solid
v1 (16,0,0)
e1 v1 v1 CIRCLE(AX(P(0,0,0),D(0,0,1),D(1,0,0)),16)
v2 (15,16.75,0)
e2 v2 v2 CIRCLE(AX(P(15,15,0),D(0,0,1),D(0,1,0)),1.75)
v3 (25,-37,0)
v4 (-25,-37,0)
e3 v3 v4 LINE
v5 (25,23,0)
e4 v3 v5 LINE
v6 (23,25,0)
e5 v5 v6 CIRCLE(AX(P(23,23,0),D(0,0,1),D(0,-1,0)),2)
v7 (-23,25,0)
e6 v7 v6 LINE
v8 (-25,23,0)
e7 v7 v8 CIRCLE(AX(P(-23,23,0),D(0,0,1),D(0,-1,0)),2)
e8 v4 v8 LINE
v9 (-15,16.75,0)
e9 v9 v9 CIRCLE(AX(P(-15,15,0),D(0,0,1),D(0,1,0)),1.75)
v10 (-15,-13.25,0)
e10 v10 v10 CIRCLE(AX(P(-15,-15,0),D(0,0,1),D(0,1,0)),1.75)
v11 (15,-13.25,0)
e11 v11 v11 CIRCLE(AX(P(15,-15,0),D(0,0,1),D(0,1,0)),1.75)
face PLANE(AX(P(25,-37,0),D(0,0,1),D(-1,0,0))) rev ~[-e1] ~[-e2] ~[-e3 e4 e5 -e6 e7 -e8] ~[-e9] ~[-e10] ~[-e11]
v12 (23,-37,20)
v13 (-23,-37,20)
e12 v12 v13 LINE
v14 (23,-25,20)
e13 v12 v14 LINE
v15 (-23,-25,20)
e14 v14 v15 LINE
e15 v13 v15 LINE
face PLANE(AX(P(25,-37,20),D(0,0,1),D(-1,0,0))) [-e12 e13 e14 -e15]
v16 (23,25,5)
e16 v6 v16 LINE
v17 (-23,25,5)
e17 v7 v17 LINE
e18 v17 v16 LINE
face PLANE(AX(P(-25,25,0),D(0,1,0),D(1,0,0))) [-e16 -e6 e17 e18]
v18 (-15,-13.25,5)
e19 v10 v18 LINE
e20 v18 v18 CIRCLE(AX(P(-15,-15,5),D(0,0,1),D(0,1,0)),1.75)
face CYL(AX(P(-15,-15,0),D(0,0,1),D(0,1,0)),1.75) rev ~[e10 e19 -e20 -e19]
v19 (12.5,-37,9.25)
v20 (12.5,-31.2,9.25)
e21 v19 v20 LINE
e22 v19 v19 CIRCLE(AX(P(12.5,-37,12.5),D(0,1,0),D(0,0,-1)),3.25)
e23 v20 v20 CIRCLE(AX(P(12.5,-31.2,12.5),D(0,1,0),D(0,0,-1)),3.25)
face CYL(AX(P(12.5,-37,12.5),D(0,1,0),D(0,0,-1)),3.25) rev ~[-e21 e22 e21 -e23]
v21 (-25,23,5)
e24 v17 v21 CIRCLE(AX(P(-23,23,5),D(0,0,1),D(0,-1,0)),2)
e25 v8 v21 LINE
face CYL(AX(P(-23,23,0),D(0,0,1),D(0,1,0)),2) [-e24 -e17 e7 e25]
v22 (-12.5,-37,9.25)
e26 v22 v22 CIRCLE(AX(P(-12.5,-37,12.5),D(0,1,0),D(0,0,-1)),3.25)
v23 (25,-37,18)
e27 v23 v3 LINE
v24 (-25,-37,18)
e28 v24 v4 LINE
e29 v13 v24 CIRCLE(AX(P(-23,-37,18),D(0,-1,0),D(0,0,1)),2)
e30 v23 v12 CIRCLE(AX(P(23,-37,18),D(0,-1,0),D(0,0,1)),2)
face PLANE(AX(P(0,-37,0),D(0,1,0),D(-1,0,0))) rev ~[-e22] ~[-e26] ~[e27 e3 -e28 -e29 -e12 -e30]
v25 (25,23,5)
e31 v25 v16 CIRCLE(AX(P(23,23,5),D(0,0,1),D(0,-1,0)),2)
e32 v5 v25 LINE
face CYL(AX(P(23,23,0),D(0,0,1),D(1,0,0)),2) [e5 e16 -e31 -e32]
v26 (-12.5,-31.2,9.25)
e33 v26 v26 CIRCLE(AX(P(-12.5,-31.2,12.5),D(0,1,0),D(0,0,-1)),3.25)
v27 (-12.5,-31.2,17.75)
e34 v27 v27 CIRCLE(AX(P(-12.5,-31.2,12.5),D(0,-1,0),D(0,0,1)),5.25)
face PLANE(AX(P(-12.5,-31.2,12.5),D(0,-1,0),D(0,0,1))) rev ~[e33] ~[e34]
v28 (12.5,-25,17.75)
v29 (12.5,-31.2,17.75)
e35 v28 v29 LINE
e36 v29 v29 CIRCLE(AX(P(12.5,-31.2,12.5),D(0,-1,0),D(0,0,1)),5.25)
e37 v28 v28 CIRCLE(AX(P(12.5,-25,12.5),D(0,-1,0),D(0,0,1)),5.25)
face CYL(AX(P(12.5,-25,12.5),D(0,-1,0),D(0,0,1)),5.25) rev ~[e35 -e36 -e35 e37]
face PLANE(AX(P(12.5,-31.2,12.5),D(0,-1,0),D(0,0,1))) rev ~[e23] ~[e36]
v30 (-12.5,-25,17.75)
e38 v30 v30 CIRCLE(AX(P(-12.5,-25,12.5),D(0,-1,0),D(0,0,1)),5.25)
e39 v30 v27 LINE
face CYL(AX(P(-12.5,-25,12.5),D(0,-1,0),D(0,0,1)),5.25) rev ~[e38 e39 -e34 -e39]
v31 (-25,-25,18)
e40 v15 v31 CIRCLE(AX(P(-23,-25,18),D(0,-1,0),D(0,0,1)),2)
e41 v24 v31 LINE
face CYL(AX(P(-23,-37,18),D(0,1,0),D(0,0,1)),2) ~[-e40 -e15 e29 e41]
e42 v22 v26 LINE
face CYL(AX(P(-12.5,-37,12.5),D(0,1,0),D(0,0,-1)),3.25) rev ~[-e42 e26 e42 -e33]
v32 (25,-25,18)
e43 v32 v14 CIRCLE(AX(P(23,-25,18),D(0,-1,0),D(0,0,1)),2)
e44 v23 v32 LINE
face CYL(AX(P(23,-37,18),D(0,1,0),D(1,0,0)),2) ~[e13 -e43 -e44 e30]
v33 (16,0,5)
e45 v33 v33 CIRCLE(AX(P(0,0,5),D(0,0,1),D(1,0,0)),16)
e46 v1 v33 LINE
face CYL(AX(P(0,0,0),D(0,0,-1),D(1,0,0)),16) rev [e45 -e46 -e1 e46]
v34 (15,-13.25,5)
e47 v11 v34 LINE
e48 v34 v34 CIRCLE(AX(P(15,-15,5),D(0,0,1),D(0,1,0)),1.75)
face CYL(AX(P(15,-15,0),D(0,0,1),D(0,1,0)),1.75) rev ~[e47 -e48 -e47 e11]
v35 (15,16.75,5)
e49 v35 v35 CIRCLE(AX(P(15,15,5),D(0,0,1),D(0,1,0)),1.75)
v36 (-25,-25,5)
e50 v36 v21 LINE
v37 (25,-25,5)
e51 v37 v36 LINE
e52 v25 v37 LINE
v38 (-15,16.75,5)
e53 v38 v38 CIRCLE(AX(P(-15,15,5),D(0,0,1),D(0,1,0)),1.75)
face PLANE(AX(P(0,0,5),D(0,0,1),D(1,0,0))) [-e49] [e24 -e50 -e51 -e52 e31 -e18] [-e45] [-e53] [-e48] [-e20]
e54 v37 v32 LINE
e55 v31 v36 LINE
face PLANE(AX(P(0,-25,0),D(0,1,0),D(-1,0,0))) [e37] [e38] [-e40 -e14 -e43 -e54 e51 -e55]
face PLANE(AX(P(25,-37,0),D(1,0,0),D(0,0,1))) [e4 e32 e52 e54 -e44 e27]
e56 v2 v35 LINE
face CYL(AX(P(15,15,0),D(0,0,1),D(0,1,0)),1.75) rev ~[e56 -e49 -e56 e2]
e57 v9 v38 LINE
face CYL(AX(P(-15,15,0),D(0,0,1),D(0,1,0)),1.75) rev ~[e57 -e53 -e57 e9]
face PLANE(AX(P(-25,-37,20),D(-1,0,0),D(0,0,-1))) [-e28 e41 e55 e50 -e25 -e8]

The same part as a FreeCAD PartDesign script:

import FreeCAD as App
import Part
import Sketcher

V = App.Vector


def edges_at(feature, points):
    """Names of the edges that pass closest to the given points."""
    edges = feature.Shape.Edges
    near = lambda p: min(range(len(edges)), key=lambda i: edges[i].distToShape(Part.Vertex(*p))[0])
    return sorted({f"Edge{near(p) + 1}" for p in points})


def add_polygon(sketch, points):
    """Adds a closed chain of lines whose ends are joined by coincident constraints."""
    first, n = sketch.GeometryCount, len(points)
    for a, b in zip(points, points[1:] + points[:1]):
        sketch.addGeometry(Part.LineSegment(App.Vector(*a, 0), App.Vector(*b, 0)), False)
    for i in range(n):
        sketch.addConstraint(Sketcher.Constraint("Coincident", first + i, 2, first + (i + 1) % n, 1))

doc = App.newDocument("Part")
body = doc.addObject("PartDesign::Body", "Body")

sketch1 = body.newObject("Sketcher::SketchObject", "Sketch")
sketch1.AttachmentSupport = (doc.getObject("XY_Plane"), [""])
sketch1.MapMode = "FlatFace"
add_polygon(sketch1, [(-25, -25), (25, -25), (25, 25), (-25, 25)])
sketch1.addGeometry(Part.Circle(V(0, 0, 0), V(0, 0, 1), 16), False)
sketch1.addConstraint(Sketcher.Constraint("Horizontal", 0))
sketch1.addConstraint(Sketcher.Constraint("Vertical", 1))
sketch1.addConstraint(Sketcher.Constraint("Horizontal", 2))
sketch1.addConstraint(Sketcher.Constraint("Vertical", 3))
sketch1.addConstraint(Sketcher.Constraint("Coincident", 4, 3, -1, 1))
sketch1.addConstraint(Sketcher.Constraint("Symmetric", 0, 2, 2, 2, -1, 1))
sketch1.addConstraint(Sketcher.Constraint("Equal", 2, 1))
sketch1.addConstraint(Sketcher.Constraint("Diameter", 4, 32.0))
sketch1.addConstraint(Sketcher.Constraint("DistanceX", 0, 1, 0, 2, 50.0))
pad1 = body.newObject("PartDesign::Pad", "Pad")
pad1.Profile = sketch1
pad1.Length = 5

sketch2 = body.newObject("Sketcher::SketchObject", "Sketch001")
sketch2.AttachmentSupport = (doc.getObject("XY_Plane"), [""])
sketch2.MapMode = "FlatFace"
sketch2.addGeometry(Part.Circle(V(-15, 15, 0), V(0, 0, 1), 1.75), False)
sketch2.addGeometry(Part.Circle(V(15, 15, 0), V(0, 0, 1), 1.75), False)
sketch2.addGeometry(Part.Circle(V(-15, -15, 0), V(0, 0, 1), 1.75), False)
sketch2.addGeometry(Part.Circle(V(15, -15, 0), V(0, 0, 1), 1.75), False)
sketch2.addConstraint(Sketcher.Constraint("Equal", 0, 1))
sketch2.addConstraint(Sketcher.Constraint("Equal", 1, 2))
sketch2.addConstraint(Sketcher.Constraint("Equal", 2, 3))
sketch2.addConstraint(Sketcher.Constraint("Symmetric", 1, 3, 2, 3, -1, 1))
sketch2.addConstraint(Sketcher.Constraint("Symmetric", 0, 3, 3, 3, -1, 1))
sketch2.addConstraint(Sketcher.Constraint("Symmetric", 0, 3, 1, 3, -2))
sketch2.addConstraint(Sketcher.Constraint("Diameter", 0, 3.5))
sketch2.addConstraint(Sketcher.Constraint("DistanceX", 0, 3, -1, 1, 15.0))
sketch2.addConstraint(Sketcher.Constraint("DistanceY", -1, 1, 0, 3, 15.0))
doc.recompute()
hole = body.newObject("PartDesign::Hole", "Hole")
hole.Profile = sketch2
hole.ThreadType = "None"
hole.Diameter = 3.5
hole.DepthType = "ThroughAll"
hole.Reversed = True

sketch3 = body.newObject("Sketcher::SketchObject", "Sketch002")
sketch3.AttachmentSupport = (doc.getObject("XZ_Plane"), [""])
sketch3.MapMode = "FlatFace"
sketch3.AttachmentOffset = App.Placement(V(0, 0, 37), App.Rotation())
add_polygon(sketch3, [(25, 20), (25, 0), (-25, 0), (-25, 20)])
sketch3.addConstraint(Sketcher.Constraint("Vertical", 0))
sketch3.addConstraint(Sketcher.Constraint("Horizontal", 1))
sketch3.addConstraint(Sketcher.Constraint("Vertical", 2))
sketch3.addConstraint(Sketcher.Constraint("Horizontal", 3))
sketch3.addConstraint(Sketcher.Constraint("Symmetric", 0, 2, 1, 2, -1, 1))
sketch3.addConstraint(Sketcher.Constraint("DistanceY", 0, 2, 0, 1, 20.0))
sketch3.addConstraint(Sketcher.Constraint("DistanceX", -1, 1, 0, 2, 25.0))
pad2 = body.newObject("PartDesign::Pad", "Pad001")
pad2.Profile = sketch3
pad2.Length = 12
pad2.Reversed = True

sketch4 = body.newObject("Sketcher::SketchObject", "Sketch003")
sketch4.AttachmentSupport = (doc.getObject("XZ_Plane"), [""])
sketch4.MapMode = "FlatFace"
sketch4.AttachmentOffset = App.Placement(V(0, 0, 37), App.Rotation())
sketch4.addGeometry(Part.Circle(V(12.5, 12.5, 0), V(0, 0, 1), 3.25), False)
sketch4.addGeometry(Part.Circle(V(-12.5, 12.5, 0), V(0, 0, 1), 3.25), False)
sketch4.addConstraint(Sketcher.Constraint("Equal", 0, 1))
sketch4.addConstraint(Sketcher.Constraint("Symmetric", 0, 3, 1, 3, -2))
sketch4.addConstraint(Sketcher.Constraint("Diameter", 0, 6.5))
sketch4.addConstraint(Sketcher.Constraint("DistanceX", 1, 3, 0, 3, 25.0))
sketch4.addConstraint(Sketcher.Constraint("DistanceY", -1, 1, 0, 3, 12.5))
doc.recompute()
hole2 = body.newObject("PartDesign::Hole", "Hole001")
hole2.Profile = sketch4
hole2.ThreadType = "None"
hole2.Diameter = 6.5
hole2.DepthType = "ThroughAll"
doc.recompute()

fillet = body.newObject("PartDesign::Fillet", "Fillet")
fillet.Base = (hole2, edges_at(hole2, [
    (25, 25, 2.5),
    (-25, 25, 2.5),
    (25, -31, 20),
    (-25, -31, 20),
]))
fillet.Radius = 2

sketch5 = body.newObject("Sketcher::SketchObject", "Sketch004")
sketch5.AttachmentSupport = (doc.getObject("XZ_Plane"), [""])
sketch5.MapMode = "FlatFace"
sketch5.AttachmentOffset = App.Placement(V(0, 0, 25), App.Rotation())
sketch5.addGeometry(Part.Circle(V(-12.5, 12.5, 0), V(0, 0, 1), 5.25), False)
sketch5.addGeometry(Part.Circle(V(12.5, 12.5, 0), V(0, 0, 1), 5.25), False)
sketch5.addConstraint(Sketcher.Constraint("Equal", 0, 1))
sketch5.addConstraint(Sketcher.Constraint("Symmetric", 0, 3, 1, 3, -2))
sketch5.addConstraint(Sketcher.Constraint("Diameter", 0, 10.5))
sketch5.addConstraint(Sketcher.Constraint("DistanceX", 0, 3, 1, 3, 25.0))
sketch5.addConstraint(Sketcher.Constraint("DistanceY", -1, 1, 0, 3, 12.5))
doc.recompute()
hole3 = body.newObject("PartDesign::Hole", "Hole002")
hole3.Profile = sketch5
hole3.ThreadType = "None"
hole3.Diameter = 10.5
hole3.DepthType = "Dimension"
hole3.Depth = 6.2
hole3.DrillPoint = "Flat"
hole3.Reversed = True

doc.recompute()
